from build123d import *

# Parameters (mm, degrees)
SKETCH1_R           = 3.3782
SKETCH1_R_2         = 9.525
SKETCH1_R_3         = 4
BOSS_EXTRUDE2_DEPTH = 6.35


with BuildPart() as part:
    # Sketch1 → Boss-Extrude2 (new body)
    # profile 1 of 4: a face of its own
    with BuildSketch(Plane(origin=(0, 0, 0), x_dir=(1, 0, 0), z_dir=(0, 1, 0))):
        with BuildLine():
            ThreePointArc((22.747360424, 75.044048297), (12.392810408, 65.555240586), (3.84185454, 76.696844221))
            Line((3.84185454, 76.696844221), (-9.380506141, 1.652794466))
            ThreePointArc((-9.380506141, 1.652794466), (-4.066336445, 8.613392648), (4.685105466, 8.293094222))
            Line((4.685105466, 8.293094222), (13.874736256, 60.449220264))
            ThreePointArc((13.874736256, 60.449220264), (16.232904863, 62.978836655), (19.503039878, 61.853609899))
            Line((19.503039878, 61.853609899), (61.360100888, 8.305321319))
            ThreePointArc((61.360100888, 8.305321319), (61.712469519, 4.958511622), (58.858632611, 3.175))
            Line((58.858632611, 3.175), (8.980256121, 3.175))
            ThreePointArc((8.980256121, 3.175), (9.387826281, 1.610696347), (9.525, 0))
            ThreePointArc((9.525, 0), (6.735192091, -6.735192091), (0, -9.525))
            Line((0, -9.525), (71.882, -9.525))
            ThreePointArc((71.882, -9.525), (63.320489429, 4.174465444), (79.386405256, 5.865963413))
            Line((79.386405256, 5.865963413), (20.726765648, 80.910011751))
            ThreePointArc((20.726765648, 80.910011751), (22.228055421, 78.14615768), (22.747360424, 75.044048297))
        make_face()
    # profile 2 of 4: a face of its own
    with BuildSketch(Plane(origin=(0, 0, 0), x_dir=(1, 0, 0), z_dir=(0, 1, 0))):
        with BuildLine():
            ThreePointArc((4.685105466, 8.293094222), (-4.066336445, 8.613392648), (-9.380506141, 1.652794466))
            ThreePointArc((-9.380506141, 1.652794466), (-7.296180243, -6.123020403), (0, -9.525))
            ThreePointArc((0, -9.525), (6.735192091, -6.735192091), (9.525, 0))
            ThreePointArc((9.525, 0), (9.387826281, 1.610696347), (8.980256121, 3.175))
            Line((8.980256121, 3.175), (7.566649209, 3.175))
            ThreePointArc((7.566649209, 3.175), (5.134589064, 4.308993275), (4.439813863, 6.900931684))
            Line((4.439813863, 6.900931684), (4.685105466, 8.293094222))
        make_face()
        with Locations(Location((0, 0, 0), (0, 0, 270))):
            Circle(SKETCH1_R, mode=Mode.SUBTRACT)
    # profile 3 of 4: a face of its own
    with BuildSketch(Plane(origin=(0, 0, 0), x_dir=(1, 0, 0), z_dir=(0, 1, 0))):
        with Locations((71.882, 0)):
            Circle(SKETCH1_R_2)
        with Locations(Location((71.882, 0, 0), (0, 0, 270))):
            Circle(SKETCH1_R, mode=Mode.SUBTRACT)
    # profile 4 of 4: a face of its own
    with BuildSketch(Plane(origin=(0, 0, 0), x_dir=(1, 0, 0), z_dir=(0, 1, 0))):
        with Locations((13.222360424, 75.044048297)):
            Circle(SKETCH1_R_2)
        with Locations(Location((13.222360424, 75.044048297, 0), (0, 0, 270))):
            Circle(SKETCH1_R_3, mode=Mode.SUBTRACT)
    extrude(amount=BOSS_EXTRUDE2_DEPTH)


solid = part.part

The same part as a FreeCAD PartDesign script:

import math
import FreeCAD as App
import Part
import Sketcher
from FreeCAD import Vector
Q = App.Units.Quantity

doc = App.newDocument("Part")
body = doc.addObject("PartDesign::Body", "Body")

# Sketch on XZ plane
sketch1 = body.newObject("Sketcher::SketchObject", "Sketch")
sketch1.AttachmentSupport = (doc.getObject("XZ_Plane"), [""])
sketch1.MapMode = "FlatFace"
sketch1.addGeometry([
    Part.LineSegment(Vector(3.8, -76.7, 0), Vector(-9.4, -1.7, 0)),  # 0
    Part.ArcOfCircle(Part.Circle(Vector(0, 0, 0), Vector(0, 0, 1), 9.5), math.radians(90), math.radians(190)),  # 1
    Part.LineSegment(Vector(0, 9.5, 0), Vector(71.9, 9.5, 0)),  # 2
    Part.ArcOfCircle(Part.Circle(Vector(71.9, 0, 0), Vector(0, 0, 1), 9.5), math.radians(-38), math.radians(90)),  # 3
    Part.LineSegment(Vector(79.4, -5.9, 0), Vector(20.7, -80.9, 0)),  # 4
    Part.ArcOfCircle(Part.Circle(Vector(13.2, -75, 0), Vector(0, 0, 1), 9.5), math.radians(-170), math.radians(-38)),  # 5
    Part.LineSegment(Vector(4.7, -8.3, 0), Vector(13.9, -60.4, 0)),  # 6
    Part.ArcOfCircle(Part.Circle(Vector(17, -59.9, 0), Vector(0, 0, 1), 3.2), math.radians(-170), math.radians(-38)),  # 7
    Part.LineSegment(Vector(19.5, -61.9, 0), Vector(61.4, -8.3, 0)),  # 8
    Part.ArcOfCircle(Part.Circle(Vector(58.9, -6.3, 0), Vector(0, 0, 1), 3.2), math.radians(-38), math.radians(90)),  # 9
    Part.LineSegment(Vector(58.9, -3.2, 0), Vector(7.6, -3.2, 0)),  # 10
    Part.ArcOfCircle(Part.Circle(Vector(7.6, -6.3, 0), Vector(0, 0, 1), 3.2), math.radians(90), math.radians(190)),  # 11
    Part.LineSegment(Vector(4.4, -6.9, 0), Vector(4.7, -8.3, 0)),  # 12
    Part.Circle(Vector(13.2, -75, 0), Vector(0, 0, 1), 4),  # 13
    Part.Circle(Vector(0, 0, 0), Vector(0, 0, 1), 3.4),  # 14
    Part.Circle(Vector(71.9, 0, 0), Vector(0, 0, 1), 3.4),  # 15
], False)
sketch1.addConstraint([
    Sketcher.Constraint("Tangent", 0, 2, 1, 2),
    Sketcher.Constraint("Tangent", 1, 1, 2, 1),
    Sketcher.Constraint("Tangent", 2, 2, 3, 2),
    Sketcher.Constraint("Tangent", 3, 1, 4, 1),
    Sketcher.Constraint("Tangent", 4, 2, 5, 2),
    Sketcher.Constraint("Tangent", 5, 1, 0, 1),
    Sketcher.Constraint("Tangent", 6, 2, 7, 1),
    Sketcher.Constraint("Tangent", 7, 2, 8, 1),
    Sketcher.Constraint("Tangent", 8, 2, 9, 1),
    Sketcher.Constraint("Tangent", 9, 2, 10, 1),
    Sketcher.Constraint("Tangent", 10, 2, 11, 1),
    Sketcher.Constraint("Tangent", 11, 2, 12, 1),
    Sketcher.Constraint("Coincident", 12, 2, 6, 1),
    Sketcher.Constraint("Horizontal", 2),
    Sketcher.Constraint("Horizontal", 10),
    Sketcher.Constraint("Coincident", 1, 3, -1, 1),
    Sketcher.Constraint("Coincident", 14, 3, -1, 1),
    Sketcher.Constraint("Coincident", 13, 3, 5, 3),
    Sketcher.Constraint("Coincident", 15, 3, 3, 3),
    Sketcher.Constraint("Equal", 1, 3),
    Sketcher.Constraint("Equal", 3, 5),
    Sketcher.Constraint("Equal", 7, 9),
    Sketcher.Constraint("Equal", 9, 11),
    Sketcher.Constraint("Equal", 14, 15),
    Sketcher.Constraint("Parallel", 0, 6),
    Sketcher.Constraint("Parallel", 4, 8),
    Sketcher.Constraint("Parallel", 6, 12),
    Sketcher.Constraint("Distance", 0, Q("3.0000001 in")),
    Sketcher.Constraint("Diameter", 14, Q("0.266 in")),
    Sketcher.Constraint("Radius", 1, Q("0.375 in")),
    Sketcher.Constraint("Radius", 7, Q("0.125 in")),
    Sketcher.Constraint("DistanceX", 2, 1, 2, 2, Q("2.83 in")),
    Sketcher.Constraint("DistanceY", 9, 2, 2, 2, Q("0.5 in")),
    Sketcher.Constraint("Distance", 4, Q("3.75 in")),
    Sketcher.Constraint("Diameter", 13, Q("8 mm")),
    Sketcher.Constraint("DistanceX", -1, 1, 8, 2, Q("61.360101 mm")),
    Sketcher.Constraint("DistanceY", 4, 2, 7, 2, Q("19.056402 mm")),
    Sketcher.Constraint("Distance", 6, Q("52.95952 mm")),
])
pad1 = body.newObject("PartDesign::Pad", "Pad")
pad1.Profile = sketch1
pad1.Length = Q("0.25 in")
pad1.Reversed = True

doc.recompute()
